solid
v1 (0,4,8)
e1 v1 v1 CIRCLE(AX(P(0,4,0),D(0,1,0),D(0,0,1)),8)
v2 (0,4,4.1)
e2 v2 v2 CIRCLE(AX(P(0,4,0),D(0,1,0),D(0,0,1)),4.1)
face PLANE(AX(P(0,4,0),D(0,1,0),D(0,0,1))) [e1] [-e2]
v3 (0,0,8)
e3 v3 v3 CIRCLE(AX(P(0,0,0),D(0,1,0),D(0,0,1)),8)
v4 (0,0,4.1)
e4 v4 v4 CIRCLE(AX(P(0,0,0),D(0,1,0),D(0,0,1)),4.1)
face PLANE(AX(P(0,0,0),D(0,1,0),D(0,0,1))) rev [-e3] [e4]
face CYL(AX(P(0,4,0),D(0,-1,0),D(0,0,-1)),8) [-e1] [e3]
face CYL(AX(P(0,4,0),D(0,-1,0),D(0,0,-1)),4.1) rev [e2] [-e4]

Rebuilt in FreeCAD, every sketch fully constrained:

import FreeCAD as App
import Part
import Sketcher

V = App.Vector

doc = App.newDocument("Part")
params = doc.addObject("Spreadsheet::Sheet", "Params")
for row, (alias, value) in enumerate([
    ("sketch1_diameter", "16 mm"),
    ("sketch1_diameter2", "8.2 mm"),
    ("pad1_length", "4 mm"),
], start=1):
    params.set(f"A{row}", alias)
    params.set(f"B{row}", "=" + value)
    params.setAlias(f"B{row}", alias)

body = doc.addObject("PartDesign::Body", "Body")

sketch1 = body.newObject("Sketcher::SketchObject", "Sketch")
sketch1.AttachmentSupport = (doc.getObject("XZ_Plane"), [""])
sketch1.MapMode = "FlatFace"
sketch1.addGeometry(Part.Circle(V(0, 0, 0), V(0, 0, 1), 8), False)
sketch1.addGeometry(Part.Circle(V(0, 0, 0), V(0, 0, 1), 4.1), False)
sketch1.addConstraint(Sketcher.Constraint("Coincident", 0, 3, -1, 1))
sketch1.addConstraint(Sketcher.Constraint("Coincident", 1, 3, -1, 1))
sketch1.addConstraint(Sketcher.Constraint("Diameter", 0, 16.0))
sketch1.addConstraint(Sketcher.Constraint("Diameter", 1, 8.2))
sketch1.setExpression("Constraints[2]", "Params.sketch1_diameter")
sketch1.setExpression("Constraints[3]", "Params.sketch1_diameter2")
pad1 = body.newObject("PartDesign::Pad", "Pad")
pad1.Profile = sketch1
pad1.setExpression("Length", "Params.pad1_length")
pad1.Reversed = True

doc.recompute()
